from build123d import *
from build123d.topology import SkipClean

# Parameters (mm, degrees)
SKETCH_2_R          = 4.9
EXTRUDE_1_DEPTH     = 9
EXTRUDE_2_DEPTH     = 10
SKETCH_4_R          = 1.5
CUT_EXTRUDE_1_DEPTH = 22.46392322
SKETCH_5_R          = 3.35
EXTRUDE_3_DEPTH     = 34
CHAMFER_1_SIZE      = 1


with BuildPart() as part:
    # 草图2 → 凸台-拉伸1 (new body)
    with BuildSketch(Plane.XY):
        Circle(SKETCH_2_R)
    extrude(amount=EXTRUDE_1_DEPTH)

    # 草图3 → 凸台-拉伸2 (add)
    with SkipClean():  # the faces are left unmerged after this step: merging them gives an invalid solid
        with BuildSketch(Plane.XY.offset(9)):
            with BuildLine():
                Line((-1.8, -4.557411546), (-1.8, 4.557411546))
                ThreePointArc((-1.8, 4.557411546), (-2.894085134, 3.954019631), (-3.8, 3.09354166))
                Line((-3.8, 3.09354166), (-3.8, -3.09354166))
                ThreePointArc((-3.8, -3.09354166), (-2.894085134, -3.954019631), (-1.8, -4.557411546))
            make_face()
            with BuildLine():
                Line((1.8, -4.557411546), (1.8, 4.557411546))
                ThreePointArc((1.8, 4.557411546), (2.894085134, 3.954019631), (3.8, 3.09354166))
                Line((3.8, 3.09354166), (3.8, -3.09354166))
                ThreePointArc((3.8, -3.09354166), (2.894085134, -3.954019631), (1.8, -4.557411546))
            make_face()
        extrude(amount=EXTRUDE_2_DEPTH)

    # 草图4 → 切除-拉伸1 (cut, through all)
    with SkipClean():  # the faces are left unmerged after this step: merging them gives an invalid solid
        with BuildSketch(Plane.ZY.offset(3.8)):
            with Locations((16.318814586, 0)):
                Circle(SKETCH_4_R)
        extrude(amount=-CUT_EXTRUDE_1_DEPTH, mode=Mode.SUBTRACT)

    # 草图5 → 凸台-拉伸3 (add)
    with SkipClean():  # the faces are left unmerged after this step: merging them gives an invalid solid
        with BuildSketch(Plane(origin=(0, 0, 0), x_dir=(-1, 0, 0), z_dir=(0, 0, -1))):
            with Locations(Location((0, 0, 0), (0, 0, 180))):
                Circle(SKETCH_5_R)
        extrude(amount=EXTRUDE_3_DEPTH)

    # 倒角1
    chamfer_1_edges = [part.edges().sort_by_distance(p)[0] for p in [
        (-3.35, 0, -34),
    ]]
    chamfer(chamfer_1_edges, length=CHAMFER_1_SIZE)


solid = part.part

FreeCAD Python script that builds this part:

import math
import FreeCAD as App
import Part
import Sketcher

V = App.Vector
Q = App.Units.Quantity


def edges_at(feature, points):
    """Names of the edges that pass closest to the given points."""
    edges = feature.Shape.Edges
    near = lambda p: min(range(len(edges)), key=lambda i: edges[i].distToShape(Part.Vertex(*p))[0])
    return sorted({f"Edge{near(p) + 1}" for p in points})

doc = App.newDocument("Part")
body = doc.addObject("PartDesign::Body", "Body")

sketch1 = body.newObject("Sketcher::SketchObject", "Sketch")
sketch1.AttachmentSupport = (doc.getObject("XY_Plane"), [""])
sketch1.MapMode = "FlatFace"
sketch1.addGeometry(Part.Circle(V(0, 0, 0), V(0, 0, 1), 4.9), False)
sketch1.addConstraint(Sketcher.Constraint("Coincident", 0, 3, -1, 1))
sketch1.addConstraint(Sketcher.Constraint("Diameter", 0, Q("9.8 mm")))
pad1 = body.newObject("PartDesign::Pad", "Pad")
pad1.Profile = sketch1
pad1.Length = 9

sketch2 = body.newObject("Sketcher::SketchObject", "Sketch001")
sketch2.AttachmentSupport = (doc.getObject("XY_Plane"), [""])
sketch2.MapMode = "FlatFace"
sketch2.AttachmentOffset = App.Placement(V(0, 0, 9), App.Rotation())
sketch2.addGeometry(Part.LineSegment(V(-1.8, -4.6, 0), V(-1.8, 4.6, 0)), False)
sketch2.addGeometry(Part.ArcOfCircle(Part.Circle(V(0, 0, 0), V(0, 0, 1), 4.9), math.radians(112), math.radians(141)), False)
sketch2.addGeometry(Part.LineSegment(V(-3.8, 3.1, 0), V(-3.8, -3.1, 0)), False)
sketch2.addGeometry(Part.ArcOfCircle(Part.Circle(V(0, 0, 0), V(0, 0, 1), 4.9), math.radians(-141), math.radians(-112)), False)
sketch2.addGeometry(Part.LineSegment(V(1.8, 4.6, 0), V(1.8, -4.6, 0)), False)
sketch2.addGeometry(Part.ArcOfCircle(Part.Circle(V(0, 0, 0), V(0, 0, 1), 4.9), math.radians(-68), math.radians(-39)), False)
sketch2.addGeometry(Part.LineSegment(V(3.8, -3.1, 0), V(3.8, 3.1, 0)), False)
sketch2.addGeometry(Part.ArcOfCircle(Part.Circle(V(0, 0, 0), V(0, 0, 1), 4.9), math.radians(39), math.radians(68)), False)
sketch2.addConstraint(Sketcher.Constraint("Coincident", 0, 2, 1, 1))
sketch2.addConstraint(Sketcher.Constraint("Coincident", 1, 2, 2, 1))
sketch2.addConstraint(Sketcher.Constraint("Coincident", 2, 2, 3, 1))
sketch2.addConstraint(Sketcher.Constraint("Coincident", 3, 2, 0, 1))
sketch2.addConstraint(Sketcher.Constraint("Coincident", 4, 2, 5, 1))
sketch2.addConstraint(Sketcher.Constraint("Coincident", 5, 2, 6, 1))
sketch2.addConstraint(Sketcher.Constraint("Coincident", 6, 2, 7, 1))
sketch2.addConstraint(Sketcher.Constraint("Coincident", 7, 2, 4, 1))
sketch2.addConstraint(Sketcher.Constraint("Vertical", 0))
sketch2.addConstraint(Sketcher.Constraint("Vertical", 2))
sketch2.addConstraint(Sketcher.Constraint("Vertical", 4))
sketch2.addConstraint(Sketcher.Constraint("Vertical", 6))
sketch2.addConstraint(Sketcher.Constraint("Coincident", 1, 3, -1, 1))
sketch2.addConstraint(Sketcher.Constraint("Coincident", 3, 3, -1, 1))
sketch2.addConstraint(Sketcher.Constraint("Coincident", 5, 3, -1, 1))
sketch2.addConstraint(Sketcher.Constraint("Coincident", 7, 3, -1, 1))
sketch2.addConstraint(Sketcher.Constraint("Equal", 1, 3))
sketch2.addConstraint(Sketcher.Constraint("Equal", 3, 5))
sketch2.addConstraint(Sketcher.Constraint("Equal", 5, 7))
sketch2.addConstraint(Sketcher.Constraint("Horizontal", 3, 2, 4, 2))
sketch2.addConstraint(Sketcher.Constraint("Horizontal", 2, 2, 5, 2))
sketch2.addConstraint(Sketcher.Constraint("Radius", 1, Q("4.9 mm")))
sketch2.addConstraint(Sketcher.Constraint("DistanceX", 1, 2, 0, 2, Q("2 mm")))
sketch2.addConstraint(Sketcher.Constraint("DistanceX", 0, 2, -1, 1, Q("1.8 mm")))
pad2 = body.newObject("PartDesign::Pad", "Pad001")
pad2.Profile = sketch2
pad2.Length = 10

sketch3 = body.newObject("Sketcher::SketchObject", "Sketch002")
sketch3.AttachmentSupport = (doc.getObject("YZ_Plane"), [""])
sketch3.MapMode = "FlatFace"
sketch3.AttachmentOffset = App.Placement(V(0, 0, -3.8), App.Rotation())
sketch3.addGeometry(Part.Circle(V(0, 16.3, 0), V(0, 0, 1), 1.5), False)
sketch3.addConstraint(Sketcher.Constraint("PointOnObject", 0, 3, -2))
sketch3.addConstraint(Sketcher.Constraint("Diameter", 0, Q("3 mm")))
sketch3.addConstraint(Sketcher.Constraint("DistanceY", -1, 1, 0, 3, Q("16.318815 mm")))
pocket1 = body.newObject("PartDesign::Pocket", "Pocket")
pocket1.Profile = sketch3
pocket1.Type = "ThroughAll"
pocket1.Reversed = True

sketch4 = body.newObject("Sketcher::SketchObject", "Sketch003")
sketch4.AttachmentSupport = (doc.getObject("XY_Plane"), [""])
sketch4.MapMode = "FlatFace"
sketch4.addGeometry(Part.Circle(V(0, 0, 0), V(0, 0, 1), 3.4), False)
sketch4.addConstraint(Sketcher.Constraint("Coincident", 0, 3, -1, 1))
sketch4.addConstraint(Sketcher.Constraint("Diameter", 0, Q("6.7 mm")))
pad3 = body.newObject("PartDesign::Pad", "Pad002")
pad3.Profile = sketch4
pad3.Length = 34
pad3.Reversed = True
doc.recompute()

chamfer = body.newObject("PartDesign::Chamfer", "Chamfer")
chamfer.Base = (pad3, edges_at(pad3, [(-3.35, 0, -34)]))
chamfer.Size = 1

doc.recompute()
